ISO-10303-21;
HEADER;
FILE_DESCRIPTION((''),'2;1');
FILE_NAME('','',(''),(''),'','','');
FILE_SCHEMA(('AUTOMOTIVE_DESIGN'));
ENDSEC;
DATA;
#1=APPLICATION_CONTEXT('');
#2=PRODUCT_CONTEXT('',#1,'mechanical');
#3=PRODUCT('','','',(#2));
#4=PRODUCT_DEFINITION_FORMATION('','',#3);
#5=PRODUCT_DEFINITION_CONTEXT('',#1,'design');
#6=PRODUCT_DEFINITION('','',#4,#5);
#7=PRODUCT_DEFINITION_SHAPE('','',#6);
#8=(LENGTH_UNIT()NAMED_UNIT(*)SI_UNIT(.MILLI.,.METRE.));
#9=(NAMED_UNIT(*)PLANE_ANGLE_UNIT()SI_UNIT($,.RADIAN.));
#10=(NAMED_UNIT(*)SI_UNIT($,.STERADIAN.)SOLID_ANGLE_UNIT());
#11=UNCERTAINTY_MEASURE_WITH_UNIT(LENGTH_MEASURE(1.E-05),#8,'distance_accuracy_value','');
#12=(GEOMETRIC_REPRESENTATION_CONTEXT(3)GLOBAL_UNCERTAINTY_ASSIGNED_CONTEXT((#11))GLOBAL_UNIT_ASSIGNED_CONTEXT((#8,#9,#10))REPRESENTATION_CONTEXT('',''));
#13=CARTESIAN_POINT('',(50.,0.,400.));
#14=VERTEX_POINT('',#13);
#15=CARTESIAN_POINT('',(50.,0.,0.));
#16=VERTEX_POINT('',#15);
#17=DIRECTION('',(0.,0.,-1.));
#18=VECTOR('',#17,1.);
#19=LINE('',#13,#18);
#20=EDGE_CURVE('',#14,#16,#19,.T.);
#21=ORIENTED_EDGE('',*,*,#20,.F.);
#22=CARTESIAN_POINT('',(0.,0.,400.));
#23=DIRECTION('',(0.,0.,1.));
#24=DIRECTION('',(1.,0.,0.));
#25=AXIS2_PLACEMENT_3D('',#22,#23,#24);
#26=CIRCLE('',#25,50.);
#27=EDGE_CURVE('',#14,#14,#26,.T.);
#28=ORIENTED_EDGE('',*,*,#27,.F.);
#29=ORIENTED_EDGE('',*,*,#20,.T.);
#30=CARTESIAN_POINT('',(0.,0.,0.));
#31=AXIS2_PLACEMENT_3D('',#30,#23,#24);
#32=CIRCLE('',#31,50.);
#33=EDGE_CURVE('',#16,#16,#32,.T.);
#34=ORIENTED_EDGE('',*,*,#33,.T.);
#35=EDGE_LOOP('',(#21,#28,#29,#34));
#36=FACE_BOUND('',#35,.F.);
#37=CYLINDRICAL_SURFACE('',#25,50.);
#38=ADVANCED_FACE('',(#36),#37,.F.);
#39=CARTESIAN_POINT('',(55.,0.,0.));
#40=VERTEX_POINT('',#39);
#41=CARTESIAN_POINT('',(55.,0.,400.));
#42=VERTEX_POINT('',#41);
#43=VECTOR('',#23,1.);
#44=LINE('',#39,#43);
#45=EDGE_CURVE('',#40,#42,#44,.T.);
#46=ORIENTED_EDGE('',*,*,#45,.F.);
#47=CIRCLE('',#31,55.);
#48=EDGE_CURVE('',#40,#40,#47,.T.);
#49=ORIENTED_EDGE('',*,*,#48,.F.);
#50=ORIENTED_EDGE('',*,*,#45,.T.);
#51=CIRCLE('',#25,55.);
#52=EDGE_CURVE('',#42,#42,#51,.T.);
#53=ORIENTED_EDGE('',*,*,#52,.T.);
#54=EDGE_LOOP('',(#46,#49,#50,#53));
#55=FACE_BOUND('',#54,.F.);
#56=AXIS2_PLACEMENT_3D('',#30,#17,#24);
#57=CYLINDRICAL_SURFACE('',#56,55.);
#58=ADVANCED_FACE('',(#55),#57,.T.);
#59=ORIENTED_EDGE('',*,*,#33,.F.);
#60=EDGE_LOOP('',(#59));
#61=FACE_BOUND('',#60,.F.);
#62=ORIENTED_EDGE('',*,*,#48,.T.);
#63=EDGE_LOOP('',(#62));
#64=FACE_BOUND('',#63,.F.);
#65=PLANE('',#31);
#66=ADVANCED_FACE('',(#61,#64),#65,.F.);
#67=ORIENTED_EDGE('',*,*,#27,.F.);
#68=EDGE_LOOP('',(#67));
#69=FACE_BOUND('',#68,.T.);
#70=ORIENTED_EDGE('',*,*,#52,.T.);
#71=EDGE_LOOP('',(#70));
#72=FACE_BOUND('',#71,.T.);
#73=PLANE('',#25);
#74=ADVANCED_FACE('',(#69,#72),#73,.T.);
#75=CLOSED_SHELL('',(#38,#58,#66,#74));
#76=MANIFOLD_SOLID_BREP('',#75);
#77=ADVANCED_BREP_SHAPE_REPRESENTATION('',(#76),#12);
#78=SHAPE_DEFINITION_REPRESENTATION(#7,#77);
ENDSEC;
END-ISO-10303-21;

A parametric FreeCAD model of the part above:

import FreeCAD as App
import Part
import Sketcher
from FreeCAD import Vector

doc = App.newDocument("Part")
body = doc.addObject("PartDesign::Body", "Body")

# Sketch on XY plane
sketch1 = body.newObject("Sketcher::SketchObject", "Sketch")
sketch1.AttachmentSupport = (doc.getObject("XY_Plane"), [""])
sketch1.MapMode = "FlatFace"
sketch1.addGeometry(Part.Circle(Vector(0, 0, 0), Vector(0, 0, 1), 55), False)
sketch1.addConstraint([
    Sketcher.Constraint("Coincident", 0, 3, -1, 1),
    Sketcher.Constraint("Diameter", 0, 110.0),
])
pad1 = body.newObject("PartDesign::Pad", "Pad")
pad1.Profile = sketch1
pad1.Length = 400

# Sketch on XY plane
sketch2 = body.newObject("Sketcher::SketchObject", "Sketch001")
sketch2.AttachmentSupport = (doc.getObject("XY_Plane"), [""])
sketch2.MapMode = "FlatFace"
sketch2.AttachmentOffset = App.Placement(Vector(0, 0, 400), App.Rotation())
sketch2.addGeometry(Part.Circle(Vector(0, 0, 0), Vector(0, 0, 1), 50), False)
sketch2.addConstraint([
    Sketcher.Constraint("Coincident", 0, 3, -1, 1),
    Sketcher.Constraint("Diameter", 0, 100.0),
])
pocket1 = body.newObject("PartDesign::Pocket", "Pocket")
pocket1.Profile = sketch2
pocket1.Length = 400

doc.recompute()
